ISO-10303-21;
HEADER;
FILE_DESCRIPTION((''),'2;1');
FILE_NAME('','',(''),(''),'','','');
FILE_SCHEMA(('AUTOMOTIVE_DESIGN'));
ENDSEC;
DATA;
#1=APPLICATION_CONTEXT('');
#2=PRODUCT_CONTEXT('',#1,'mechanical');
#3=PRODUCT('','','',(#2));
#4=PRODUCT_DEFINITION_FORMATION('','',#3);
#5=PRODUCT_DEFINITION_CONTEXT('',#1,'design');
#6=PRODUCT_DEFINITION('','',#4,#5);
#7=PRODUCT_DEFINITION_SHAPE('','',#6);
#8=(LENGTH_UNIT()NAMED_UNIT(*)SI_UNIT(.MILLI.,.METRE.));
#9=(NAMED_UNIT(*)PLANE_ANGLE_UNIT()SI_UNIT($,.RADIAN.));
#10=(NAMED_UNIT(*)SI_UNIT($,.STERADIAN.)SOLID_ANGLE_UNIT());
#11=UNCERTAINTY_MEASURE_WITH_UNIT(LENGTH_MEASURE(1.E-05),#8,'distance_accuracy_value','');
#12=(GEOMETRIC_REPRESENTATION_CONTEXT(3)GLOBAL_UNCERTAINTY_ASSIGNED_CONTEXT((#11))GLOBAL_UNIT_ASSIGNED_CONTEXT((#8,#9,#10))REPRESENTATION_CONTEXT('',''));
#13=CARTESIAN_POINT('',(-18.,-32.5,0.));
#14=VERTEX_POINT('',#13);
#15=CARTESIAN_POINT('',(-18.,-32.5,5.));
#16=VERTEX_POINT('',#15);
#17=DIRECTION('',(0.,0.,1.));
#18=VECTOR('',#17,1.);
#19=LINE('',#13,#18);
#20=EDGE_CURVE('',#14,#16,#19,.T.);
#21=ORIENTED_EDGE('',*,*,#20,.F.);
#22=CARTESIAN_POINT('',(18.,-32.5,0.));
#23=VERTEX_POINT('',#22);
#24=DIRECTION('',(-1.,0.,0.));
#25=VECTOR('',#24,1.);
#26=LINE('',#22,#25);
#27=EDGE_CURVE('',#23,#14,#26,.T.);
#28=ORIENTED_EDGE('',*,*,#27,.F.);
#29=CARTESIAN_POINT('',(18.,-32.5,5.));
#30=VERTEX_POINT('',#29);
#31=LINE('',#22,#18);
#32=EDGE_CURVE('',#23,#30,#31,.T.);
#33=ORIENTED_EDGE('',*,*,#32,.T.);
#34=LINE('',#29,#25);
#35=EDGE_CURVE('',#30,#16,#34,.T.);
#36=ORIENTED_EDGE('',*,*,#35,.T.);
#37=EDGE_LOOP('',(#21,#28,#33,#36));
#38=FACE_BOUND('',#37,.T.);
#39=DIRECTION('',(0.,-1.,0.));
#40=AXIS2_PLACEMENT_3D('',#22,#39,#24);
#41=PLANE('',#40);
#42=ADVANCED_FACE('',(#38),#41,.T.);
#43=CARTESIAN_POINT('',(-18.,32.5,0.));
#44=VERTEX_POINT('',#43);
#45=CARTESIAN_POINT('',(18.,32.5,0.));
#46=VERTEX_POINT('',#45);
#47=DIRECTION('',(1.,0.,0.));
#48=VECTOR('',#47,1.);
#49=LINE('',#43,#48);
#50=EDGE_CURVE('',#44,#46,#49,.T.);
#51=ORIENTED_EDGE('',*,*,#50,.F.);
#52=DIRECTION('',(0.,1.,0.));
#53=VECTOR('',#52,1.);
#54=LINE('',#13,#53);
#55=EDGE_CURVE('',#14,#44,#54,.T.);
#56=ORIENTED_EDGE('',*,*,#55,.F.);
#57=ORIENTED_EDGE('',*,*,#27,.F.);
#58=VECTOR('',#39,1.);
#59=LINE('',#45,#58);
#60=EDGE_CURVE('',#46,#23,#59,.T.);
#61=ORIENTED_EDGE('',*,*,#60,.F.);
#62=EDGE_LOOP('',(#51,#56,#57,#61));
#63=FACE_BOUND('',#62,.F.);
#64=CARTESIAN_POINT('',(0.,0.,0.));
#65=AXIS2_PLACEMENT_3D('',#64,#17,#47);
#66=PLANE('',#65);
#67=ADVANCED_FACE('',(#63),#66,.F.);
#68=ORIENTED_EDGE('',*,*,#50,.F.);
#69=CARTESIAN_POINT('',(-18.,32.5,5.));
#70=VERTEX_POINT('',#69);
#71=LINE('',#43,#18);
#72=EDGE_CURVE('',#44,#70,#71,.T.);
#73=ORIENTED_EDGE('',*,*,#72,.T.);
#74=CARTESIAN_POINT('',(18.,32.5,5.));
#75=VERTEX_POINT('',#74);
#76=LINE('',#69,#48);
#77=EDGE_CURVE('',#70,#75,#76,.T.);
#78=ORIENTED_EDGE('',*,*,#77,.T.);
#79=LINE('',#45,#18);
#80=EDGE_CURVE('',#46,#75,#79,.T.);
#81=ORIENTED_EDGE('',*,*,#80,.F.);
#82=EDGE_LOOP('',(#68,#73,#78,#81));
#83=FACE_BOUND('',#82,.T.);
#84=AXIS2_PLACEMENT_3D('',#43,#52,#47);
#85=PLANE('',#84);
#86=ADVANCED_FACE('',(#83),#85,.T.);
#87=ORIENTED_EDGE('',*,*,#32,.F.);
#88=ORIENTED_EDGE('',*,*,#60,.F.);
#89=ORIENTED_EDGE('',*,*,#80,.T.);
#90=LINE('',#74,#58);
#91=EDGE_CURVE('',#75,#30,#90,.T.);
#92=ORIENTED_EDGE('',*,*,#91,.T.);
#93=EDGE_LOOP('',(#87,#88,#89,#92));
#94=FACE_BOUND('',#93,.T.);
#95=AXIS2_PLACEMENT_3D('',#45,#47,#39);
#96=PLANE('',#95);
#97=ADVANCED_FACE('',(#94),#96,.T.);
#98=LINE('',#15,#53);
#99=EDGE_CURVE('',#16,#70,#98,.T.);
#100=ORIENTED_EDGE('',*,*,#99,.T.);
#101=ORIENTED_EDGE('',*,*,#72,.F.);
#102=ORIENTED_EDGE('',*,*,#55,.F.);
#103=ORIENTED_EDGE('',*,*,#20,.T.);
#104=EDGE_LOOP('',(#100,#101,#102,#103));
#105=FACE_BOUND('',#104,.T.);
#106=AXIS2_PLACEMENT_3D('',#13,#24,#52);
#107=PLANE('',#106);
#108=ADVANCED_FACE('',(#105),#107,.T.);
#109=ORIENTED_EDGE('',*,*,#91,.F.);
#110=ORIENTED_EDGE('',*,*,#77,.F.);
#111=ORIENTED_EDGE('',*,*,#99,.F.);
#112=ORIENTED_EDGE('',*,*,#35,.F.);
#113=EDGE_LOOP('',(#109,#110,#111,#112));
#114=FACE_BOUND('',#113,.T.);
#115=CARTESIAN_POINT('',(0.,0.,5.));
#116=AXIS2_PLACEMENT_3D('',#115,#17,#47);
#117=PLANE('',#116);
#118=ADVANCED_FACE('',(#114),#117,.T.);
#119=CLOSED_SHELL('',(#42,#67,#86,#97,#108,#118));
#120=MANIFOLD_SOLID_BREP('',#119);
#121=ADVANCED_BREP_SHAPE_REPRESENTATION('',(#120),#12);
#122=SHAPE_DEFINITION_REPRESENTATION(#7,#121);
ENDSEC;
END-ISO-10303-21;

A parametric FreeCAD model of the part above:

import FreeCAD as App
import Part
import Sketcher

V = App.Vector

doc = App.newDocument("Part")
body = doc.addObject("PartDesign::Body", "Body")

sketch1 = doc.addObject("Sketcher::SketchObject", "Sketch")
body.addObject(sketch1)
sketch1.AttachmentSupport = (doc.XY_Plane, [""])
sketch1.MapMode = "FlatFace"
sketch1.addGeometry(Part.LineSegment(V(18, 32, 0), V(-18, 32, 0)), False)
sketch1.addGeometry(Part.LineSegment(V(-18, 32, 0), V(-18, -32, 0)), False)
sketch1.addGeometry(Part.LineSegment(V(-18, -32, 0), V(18, -32, 0)), False)
sketch1.addGeometry(Part.LineSegment(V(18, -32, 0), V(18, 32, 0)), False)
sketch1.addConstraint(Sketcher.Constraint("Coincident", 0, 2, 1, 1))
sketch1.addConstraint(Sketcher.Constraint("Coincident", 1, 2, 2, 1))
sketch1.addConstraint(Sketcher.Constraint("Coincident", 2, 2, 3, 1))
sketch1.addConstraint(Sketcher.Constraint("Coincident", 3, 2, 0, 1))
sketch1.addConstraint(Sketcher.Constraint("Horizontal", 0))
sketch1.addConstraint(Sketcher.Constraint("Vertical", 1))
sketch1.addConstraint(Sketcher.Constraint("Horizontal", 2))
sketch1.addConstraint(Sketcher.Constraint("Vertical", 3))
sketch1.addConstraint(Sketcher.Constraint("Symmetric", 0, 2, 2, 2, -1, 1))
sketch1.addConstraint(Sketcher.Constraint("DistanceX", 0, 2, 0, 1, 36.0))
sketch1.addConstraint(Sketcher.Constraint("DistanceY", 1, 2, 1, 1, 65.0))
pad1 = doc.addObject("PartDesign::Pad", "Pad")
body.addObject(pad1)
pad1.Profile = sketch1
pad1.Length = 5

doc.recompute()
